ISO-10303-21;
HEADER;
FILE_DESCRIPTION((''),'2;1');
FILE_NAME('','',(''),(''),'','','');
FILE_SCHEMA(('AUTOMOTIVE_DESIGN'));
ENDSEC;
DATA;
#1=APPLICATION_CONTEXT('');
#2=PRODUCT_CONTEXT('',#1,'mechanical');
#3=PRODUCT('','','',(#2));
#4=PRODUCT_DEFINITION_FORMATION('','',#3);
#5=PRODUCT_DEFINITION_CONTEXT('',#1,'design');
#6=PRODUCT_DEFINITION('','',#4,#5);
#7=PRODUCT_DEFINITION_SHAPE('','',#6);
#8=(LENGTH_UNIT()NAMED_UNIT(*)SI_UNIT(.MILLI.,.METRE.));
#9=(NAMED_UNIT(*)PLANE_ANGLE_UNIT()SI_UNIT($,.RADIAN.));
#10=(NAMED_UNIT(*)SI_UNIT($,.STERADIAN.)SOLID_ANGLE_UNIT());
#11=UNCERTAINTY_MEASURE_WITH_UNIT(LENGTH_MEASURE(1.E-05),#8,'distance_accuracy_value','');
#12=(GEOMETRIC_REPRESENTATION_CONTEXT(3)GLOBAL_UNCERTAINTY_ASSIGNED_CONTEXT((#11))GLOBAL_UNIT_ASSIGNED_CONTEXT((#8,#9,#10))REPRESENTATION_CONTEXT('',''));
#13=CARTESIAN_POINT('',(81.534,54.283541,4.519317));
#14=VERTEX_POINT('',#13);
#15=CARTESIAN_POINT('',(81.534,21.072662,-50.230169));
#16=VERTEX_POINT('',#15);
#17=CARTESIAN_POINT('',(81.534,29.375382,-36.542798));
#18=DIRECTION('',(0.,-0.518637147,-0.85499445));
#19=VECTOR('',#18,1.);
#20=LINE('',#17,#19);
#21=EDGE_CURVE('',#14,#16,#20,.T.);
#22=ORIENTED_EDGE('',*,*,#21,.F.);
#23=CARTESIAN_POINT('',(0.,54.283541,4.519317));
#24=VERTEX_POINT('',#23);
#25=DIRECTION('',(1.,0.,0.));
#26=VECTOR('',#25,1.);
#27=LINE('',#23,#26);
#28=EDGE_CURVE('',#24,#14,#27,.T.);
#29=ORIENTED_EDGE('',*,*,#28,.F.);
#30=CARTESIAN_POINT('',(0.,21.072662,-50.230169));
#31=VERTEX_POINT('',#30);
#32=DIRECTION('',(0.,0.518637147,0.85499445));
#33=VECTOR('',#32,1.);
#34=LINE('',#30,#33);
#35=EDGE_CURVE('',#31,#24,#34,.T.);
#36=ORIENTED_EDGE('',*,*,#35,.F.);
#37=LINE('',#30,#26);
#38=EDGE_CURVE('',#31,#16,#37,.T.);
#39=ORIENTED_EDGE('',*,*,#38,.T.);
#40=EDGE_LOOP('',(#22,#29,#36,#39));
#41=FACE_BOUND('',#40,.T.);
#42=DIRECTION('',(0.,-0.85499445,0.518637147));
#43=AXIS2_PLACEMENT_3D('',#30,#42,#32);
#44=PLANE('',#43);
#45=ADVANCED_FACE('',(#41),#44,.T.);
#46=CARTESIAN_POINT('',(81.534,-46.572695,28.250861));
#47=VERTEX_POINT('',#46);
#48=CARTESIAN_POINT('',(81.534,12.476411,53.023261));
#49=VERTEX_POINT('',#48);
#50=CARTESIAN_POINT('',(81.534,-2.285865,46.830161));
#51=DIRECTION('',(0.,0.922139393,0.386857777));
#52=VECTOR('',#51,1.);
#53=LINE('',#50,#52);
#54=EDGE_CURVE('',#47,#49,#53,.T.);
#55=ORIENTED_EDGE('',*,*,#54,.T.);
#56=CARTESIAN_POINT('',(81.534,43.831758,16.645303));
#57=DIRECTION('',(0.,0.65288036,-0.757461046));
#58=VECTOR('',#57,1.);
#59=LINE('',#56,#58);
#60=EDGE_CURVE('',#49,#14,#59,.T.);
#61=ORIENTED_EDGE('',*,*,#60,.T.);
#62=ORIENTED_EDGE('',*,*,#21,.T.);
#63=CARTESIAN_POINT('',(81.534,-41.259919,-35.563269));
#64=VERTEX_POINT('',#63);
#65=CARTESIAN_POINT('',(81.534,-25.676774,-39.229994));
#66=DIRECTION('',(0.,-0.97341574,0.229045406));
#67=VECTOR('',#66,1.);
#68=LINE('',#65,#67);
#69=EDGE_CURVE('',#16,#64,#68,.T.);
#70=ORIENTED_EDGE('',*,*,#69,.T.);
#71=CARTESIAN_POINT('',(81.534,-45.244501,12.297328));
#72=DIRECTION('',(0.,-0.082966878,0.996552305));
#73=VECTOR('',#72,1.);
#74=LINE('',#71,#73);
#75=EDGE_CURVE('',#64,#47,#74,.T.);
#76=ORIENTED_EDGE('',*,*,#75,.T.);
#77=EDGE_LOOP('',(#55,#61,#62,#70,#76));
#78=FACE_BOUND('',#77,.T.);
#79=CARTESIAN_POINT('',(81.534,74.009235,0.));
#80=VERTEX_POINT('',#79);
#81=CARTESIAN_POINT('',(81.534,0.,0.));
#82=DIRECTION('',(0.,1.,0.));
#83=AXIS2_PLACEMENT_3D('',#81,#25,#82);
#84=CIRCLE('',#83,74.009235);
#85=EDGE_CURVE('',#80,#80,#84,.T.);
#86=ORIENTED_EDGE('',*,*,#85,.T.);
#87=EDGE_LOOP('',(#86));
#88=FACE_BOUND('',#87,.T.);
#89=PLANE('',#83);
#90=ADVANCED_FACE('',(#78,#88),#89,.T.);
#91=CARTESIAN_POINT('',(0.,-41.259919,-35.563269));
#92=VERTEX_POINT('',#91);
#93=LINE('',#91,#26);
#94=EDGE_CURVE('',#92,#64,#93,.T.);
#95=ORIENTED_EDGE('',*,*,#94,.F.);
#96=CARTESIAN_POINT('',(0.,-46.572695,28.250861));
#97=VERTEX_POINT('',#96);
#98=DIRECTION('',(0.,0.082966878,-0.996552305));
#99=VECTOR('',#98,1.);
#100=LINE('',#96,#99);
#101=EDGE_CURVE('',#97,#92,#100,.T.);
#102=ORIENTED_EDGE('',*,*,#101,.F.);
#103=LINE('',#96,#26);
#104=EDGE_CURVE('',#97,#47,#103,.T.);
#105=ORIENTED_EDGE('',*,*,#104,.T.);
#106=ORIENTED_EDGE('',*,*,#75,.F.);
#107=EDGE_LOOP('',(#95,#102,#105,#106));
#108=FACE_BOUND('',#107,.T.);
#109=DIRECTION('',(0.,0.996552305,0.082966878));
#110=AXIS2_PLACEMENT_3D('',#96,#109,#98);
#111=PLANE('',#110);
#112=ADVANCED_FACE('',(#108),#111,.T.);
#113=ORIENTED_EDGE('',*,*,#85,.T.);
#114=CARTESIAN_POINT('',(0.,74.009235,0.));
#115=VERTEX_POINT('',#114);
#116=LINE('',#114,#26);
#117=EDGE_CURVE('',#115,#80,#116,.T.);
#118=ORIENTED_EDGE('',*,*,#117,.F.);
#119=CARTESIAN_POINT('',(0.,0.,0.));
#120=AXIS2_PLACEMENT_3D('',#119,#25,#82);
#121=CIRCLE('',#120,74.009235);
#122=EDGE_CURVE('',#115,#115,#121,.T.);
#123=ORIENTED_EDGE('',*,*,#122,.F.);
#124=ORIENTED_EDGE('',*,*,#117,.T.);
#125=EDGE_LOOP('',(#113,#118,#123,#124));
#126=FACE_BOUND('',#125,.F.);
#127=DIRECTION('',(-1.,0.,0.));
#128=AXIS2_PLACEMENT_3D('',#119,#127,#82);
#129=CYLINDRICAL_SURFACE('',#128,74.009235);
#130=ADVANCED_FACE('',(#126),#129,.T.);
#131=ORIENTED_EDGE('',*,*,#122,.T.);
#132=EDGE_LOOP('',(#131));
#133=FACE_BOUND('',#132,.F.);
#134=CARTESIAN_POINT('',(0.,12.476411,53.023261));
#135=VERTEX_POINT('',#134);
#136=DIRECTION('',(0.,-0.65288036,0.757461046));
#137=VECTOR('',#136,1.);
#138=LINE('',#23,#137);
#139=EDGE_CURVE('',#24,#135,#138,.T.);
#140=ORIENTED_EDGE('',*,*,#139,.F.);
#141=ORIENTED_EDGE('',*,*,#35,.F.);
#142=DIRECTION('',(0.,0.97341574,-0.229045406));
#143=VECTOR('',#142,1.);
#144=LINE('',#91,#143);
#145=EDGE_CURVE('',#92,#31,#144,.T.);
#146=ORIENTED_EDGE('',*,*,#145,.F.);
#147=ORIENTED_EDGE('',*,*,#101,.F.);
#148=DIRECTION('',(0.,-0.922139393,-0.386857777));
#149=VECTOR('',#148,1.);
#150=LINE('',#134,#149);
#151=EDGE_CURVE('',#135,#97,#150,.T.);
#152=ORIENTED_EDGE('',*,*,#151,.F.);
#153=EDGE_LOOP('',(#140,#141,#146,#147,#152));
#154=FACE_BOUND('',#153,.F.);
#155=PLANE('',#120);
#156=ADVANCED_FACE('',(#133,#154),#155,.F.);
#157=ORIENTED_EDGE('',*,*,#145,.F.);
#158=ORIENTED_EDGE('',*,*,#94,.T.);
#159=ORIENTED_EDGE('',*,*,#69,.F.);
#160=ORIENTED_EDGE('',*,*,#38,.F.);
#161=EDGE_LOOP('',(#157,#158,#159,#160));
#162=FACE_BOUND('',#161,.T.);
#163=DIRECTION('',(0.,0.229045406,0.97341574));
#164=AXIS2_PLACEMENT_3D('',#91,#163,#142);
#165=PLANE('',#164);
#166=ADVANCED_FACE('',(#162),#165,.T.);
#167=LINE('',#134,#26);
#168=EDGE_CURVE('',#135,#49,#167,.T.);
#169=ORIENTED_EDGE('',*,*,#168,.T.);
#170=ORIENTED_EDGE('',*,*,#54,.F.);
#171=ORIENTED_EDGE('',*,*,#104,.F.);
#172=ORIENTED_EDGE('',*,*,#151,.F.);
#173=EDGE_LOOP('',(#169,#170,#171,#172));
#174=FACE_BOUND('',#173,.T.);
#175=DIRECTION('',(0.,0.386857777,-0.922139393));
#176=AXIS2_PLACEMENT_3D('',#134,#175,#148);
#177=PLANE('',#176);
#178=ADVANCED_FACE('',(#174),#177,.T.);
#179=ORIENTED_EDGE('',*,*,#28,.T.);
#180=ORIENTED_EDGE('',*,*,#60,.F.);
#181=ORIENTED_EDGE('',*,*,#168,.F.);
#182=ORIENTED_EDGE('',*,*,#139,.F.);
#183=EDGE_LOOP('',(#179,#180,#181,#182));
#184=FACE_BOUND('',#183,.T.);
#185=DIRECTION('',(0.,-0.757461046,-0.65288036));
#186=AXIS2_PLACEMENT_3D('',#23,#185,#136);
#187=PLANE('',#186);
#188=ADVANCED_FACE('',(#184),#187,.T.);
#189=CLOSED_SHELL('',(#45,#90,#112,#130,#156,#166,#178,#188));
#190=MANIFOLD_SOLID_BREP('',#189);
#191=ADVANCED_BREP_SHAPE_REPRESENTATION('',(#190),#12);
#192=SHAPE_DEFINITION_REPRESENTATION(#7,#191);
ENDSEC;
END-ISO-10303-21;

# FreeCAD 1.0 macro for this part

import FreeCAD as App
import Part
import Sketcher

V = App.Vector
Q = App.Units.Quantity


def add_polygon(sketch, points):
    """Adds a closed chain of lines whose ends are joined by coincident constraints."""
    first, n = sketch.GeometryCount, len(points)
    for a, b in zip(points, points[1:] + points[:1]):
        sketch.addGeometry(Part.LineSegment(App.Vector(*a, 0), App.Vector(*b, 0)), False)
    for i in range(n):
        sketch.addConstraint(Sketcher.Constraint("Coincident", first + i, 2, first + (i + 1) % n, 1))

doc = App.newDocument("Part")
body = doc.addObject("PartDesign::Body", "Body")

# Sketch on YZ plane
sketch1 = doc.addObject("Sketcher::SketchObject", "Sketch")
body.addObject(sketch1)
sketch1.AttachmentSupport = (doc.YZ_Plane, [""])
sketch1.MapMode = "FlatFace"
sketch1.addGeometry(Part.Circle(V(0, 0, 0), V(0, 0, 1), 74), False)
sketch1.addConstraint(Sketcher.Constraint("Coincident", 0, 3, -1, 1))
sketch1.addConstraint(Sketcher.Constraint("Diameter", 0, Q("148.01847 mm")))
pad1 = doc.addObject("PartDesign::Pad", "Pad")
body.addObject(pad1)
pad1.Profile = sketch1
pad1.Length = Q("3.21 in")

# Sketch on YZ plane
sketch2 = doc.addObject("Sketcher::SketchObject", "Sketch001")
body.addObject(sketch2)
sketch2.AttachmentSupport = (doc.YZ_Plane, [""])
sketch2.MapMode = "FlatFace"
add_polygon(sketch2, [(54, 5), (12, 53), (-47, 28), (-41, -36), (21, -50)])  # lines 0-4
sketch2.addConstraint(Sketcher.Constraint("Equal", 0, 1))
sketch2.addConstraint(Sketcher.Constraint("Equal", 1, 2))
sketch2.addConstraint(Sketcher.Constraint("Equal", 2, 3))
sketch2.addConstraint(Sketcher.Constraint("Equal", 3, 4))
sketch2.addConstraint(Sketcher.Constraint("Distance", 3, Q("64.034901 mm")))
sketch2.addConstraint(Sketcher.Constraint("DistanceY", 1, 2, 0, 2, Q("24.7724 mm")))
sketch2.addConstraint(Sketcher.Constraint("DistanceY", 3, 2, 2, 2, Q("14.6669 mm")))
sketch2.addConstraint(Sketcher.Constraint("DistanceX", -1, 1, 0, 2, Q("12.476411 mm")))
sketch2.addConstraint(Sketcher.Constraint("DistanceY", -1, 1, 0, 2, Q("53.023261 mm")))
sketch2.addConstraint(Sketcher.Constraint("DistanceX", 2, 2, -1, 1, Q("41.259919 mm")))
pocket1 = doc.addObject("PartDesign::Pocket", "Pocket")
body.addObject(pocket1)
pocket1.Profile = sketch2
pocket1.Length = Q("8.9 in")
pocket1.Reversed = True

doc.recompute()
